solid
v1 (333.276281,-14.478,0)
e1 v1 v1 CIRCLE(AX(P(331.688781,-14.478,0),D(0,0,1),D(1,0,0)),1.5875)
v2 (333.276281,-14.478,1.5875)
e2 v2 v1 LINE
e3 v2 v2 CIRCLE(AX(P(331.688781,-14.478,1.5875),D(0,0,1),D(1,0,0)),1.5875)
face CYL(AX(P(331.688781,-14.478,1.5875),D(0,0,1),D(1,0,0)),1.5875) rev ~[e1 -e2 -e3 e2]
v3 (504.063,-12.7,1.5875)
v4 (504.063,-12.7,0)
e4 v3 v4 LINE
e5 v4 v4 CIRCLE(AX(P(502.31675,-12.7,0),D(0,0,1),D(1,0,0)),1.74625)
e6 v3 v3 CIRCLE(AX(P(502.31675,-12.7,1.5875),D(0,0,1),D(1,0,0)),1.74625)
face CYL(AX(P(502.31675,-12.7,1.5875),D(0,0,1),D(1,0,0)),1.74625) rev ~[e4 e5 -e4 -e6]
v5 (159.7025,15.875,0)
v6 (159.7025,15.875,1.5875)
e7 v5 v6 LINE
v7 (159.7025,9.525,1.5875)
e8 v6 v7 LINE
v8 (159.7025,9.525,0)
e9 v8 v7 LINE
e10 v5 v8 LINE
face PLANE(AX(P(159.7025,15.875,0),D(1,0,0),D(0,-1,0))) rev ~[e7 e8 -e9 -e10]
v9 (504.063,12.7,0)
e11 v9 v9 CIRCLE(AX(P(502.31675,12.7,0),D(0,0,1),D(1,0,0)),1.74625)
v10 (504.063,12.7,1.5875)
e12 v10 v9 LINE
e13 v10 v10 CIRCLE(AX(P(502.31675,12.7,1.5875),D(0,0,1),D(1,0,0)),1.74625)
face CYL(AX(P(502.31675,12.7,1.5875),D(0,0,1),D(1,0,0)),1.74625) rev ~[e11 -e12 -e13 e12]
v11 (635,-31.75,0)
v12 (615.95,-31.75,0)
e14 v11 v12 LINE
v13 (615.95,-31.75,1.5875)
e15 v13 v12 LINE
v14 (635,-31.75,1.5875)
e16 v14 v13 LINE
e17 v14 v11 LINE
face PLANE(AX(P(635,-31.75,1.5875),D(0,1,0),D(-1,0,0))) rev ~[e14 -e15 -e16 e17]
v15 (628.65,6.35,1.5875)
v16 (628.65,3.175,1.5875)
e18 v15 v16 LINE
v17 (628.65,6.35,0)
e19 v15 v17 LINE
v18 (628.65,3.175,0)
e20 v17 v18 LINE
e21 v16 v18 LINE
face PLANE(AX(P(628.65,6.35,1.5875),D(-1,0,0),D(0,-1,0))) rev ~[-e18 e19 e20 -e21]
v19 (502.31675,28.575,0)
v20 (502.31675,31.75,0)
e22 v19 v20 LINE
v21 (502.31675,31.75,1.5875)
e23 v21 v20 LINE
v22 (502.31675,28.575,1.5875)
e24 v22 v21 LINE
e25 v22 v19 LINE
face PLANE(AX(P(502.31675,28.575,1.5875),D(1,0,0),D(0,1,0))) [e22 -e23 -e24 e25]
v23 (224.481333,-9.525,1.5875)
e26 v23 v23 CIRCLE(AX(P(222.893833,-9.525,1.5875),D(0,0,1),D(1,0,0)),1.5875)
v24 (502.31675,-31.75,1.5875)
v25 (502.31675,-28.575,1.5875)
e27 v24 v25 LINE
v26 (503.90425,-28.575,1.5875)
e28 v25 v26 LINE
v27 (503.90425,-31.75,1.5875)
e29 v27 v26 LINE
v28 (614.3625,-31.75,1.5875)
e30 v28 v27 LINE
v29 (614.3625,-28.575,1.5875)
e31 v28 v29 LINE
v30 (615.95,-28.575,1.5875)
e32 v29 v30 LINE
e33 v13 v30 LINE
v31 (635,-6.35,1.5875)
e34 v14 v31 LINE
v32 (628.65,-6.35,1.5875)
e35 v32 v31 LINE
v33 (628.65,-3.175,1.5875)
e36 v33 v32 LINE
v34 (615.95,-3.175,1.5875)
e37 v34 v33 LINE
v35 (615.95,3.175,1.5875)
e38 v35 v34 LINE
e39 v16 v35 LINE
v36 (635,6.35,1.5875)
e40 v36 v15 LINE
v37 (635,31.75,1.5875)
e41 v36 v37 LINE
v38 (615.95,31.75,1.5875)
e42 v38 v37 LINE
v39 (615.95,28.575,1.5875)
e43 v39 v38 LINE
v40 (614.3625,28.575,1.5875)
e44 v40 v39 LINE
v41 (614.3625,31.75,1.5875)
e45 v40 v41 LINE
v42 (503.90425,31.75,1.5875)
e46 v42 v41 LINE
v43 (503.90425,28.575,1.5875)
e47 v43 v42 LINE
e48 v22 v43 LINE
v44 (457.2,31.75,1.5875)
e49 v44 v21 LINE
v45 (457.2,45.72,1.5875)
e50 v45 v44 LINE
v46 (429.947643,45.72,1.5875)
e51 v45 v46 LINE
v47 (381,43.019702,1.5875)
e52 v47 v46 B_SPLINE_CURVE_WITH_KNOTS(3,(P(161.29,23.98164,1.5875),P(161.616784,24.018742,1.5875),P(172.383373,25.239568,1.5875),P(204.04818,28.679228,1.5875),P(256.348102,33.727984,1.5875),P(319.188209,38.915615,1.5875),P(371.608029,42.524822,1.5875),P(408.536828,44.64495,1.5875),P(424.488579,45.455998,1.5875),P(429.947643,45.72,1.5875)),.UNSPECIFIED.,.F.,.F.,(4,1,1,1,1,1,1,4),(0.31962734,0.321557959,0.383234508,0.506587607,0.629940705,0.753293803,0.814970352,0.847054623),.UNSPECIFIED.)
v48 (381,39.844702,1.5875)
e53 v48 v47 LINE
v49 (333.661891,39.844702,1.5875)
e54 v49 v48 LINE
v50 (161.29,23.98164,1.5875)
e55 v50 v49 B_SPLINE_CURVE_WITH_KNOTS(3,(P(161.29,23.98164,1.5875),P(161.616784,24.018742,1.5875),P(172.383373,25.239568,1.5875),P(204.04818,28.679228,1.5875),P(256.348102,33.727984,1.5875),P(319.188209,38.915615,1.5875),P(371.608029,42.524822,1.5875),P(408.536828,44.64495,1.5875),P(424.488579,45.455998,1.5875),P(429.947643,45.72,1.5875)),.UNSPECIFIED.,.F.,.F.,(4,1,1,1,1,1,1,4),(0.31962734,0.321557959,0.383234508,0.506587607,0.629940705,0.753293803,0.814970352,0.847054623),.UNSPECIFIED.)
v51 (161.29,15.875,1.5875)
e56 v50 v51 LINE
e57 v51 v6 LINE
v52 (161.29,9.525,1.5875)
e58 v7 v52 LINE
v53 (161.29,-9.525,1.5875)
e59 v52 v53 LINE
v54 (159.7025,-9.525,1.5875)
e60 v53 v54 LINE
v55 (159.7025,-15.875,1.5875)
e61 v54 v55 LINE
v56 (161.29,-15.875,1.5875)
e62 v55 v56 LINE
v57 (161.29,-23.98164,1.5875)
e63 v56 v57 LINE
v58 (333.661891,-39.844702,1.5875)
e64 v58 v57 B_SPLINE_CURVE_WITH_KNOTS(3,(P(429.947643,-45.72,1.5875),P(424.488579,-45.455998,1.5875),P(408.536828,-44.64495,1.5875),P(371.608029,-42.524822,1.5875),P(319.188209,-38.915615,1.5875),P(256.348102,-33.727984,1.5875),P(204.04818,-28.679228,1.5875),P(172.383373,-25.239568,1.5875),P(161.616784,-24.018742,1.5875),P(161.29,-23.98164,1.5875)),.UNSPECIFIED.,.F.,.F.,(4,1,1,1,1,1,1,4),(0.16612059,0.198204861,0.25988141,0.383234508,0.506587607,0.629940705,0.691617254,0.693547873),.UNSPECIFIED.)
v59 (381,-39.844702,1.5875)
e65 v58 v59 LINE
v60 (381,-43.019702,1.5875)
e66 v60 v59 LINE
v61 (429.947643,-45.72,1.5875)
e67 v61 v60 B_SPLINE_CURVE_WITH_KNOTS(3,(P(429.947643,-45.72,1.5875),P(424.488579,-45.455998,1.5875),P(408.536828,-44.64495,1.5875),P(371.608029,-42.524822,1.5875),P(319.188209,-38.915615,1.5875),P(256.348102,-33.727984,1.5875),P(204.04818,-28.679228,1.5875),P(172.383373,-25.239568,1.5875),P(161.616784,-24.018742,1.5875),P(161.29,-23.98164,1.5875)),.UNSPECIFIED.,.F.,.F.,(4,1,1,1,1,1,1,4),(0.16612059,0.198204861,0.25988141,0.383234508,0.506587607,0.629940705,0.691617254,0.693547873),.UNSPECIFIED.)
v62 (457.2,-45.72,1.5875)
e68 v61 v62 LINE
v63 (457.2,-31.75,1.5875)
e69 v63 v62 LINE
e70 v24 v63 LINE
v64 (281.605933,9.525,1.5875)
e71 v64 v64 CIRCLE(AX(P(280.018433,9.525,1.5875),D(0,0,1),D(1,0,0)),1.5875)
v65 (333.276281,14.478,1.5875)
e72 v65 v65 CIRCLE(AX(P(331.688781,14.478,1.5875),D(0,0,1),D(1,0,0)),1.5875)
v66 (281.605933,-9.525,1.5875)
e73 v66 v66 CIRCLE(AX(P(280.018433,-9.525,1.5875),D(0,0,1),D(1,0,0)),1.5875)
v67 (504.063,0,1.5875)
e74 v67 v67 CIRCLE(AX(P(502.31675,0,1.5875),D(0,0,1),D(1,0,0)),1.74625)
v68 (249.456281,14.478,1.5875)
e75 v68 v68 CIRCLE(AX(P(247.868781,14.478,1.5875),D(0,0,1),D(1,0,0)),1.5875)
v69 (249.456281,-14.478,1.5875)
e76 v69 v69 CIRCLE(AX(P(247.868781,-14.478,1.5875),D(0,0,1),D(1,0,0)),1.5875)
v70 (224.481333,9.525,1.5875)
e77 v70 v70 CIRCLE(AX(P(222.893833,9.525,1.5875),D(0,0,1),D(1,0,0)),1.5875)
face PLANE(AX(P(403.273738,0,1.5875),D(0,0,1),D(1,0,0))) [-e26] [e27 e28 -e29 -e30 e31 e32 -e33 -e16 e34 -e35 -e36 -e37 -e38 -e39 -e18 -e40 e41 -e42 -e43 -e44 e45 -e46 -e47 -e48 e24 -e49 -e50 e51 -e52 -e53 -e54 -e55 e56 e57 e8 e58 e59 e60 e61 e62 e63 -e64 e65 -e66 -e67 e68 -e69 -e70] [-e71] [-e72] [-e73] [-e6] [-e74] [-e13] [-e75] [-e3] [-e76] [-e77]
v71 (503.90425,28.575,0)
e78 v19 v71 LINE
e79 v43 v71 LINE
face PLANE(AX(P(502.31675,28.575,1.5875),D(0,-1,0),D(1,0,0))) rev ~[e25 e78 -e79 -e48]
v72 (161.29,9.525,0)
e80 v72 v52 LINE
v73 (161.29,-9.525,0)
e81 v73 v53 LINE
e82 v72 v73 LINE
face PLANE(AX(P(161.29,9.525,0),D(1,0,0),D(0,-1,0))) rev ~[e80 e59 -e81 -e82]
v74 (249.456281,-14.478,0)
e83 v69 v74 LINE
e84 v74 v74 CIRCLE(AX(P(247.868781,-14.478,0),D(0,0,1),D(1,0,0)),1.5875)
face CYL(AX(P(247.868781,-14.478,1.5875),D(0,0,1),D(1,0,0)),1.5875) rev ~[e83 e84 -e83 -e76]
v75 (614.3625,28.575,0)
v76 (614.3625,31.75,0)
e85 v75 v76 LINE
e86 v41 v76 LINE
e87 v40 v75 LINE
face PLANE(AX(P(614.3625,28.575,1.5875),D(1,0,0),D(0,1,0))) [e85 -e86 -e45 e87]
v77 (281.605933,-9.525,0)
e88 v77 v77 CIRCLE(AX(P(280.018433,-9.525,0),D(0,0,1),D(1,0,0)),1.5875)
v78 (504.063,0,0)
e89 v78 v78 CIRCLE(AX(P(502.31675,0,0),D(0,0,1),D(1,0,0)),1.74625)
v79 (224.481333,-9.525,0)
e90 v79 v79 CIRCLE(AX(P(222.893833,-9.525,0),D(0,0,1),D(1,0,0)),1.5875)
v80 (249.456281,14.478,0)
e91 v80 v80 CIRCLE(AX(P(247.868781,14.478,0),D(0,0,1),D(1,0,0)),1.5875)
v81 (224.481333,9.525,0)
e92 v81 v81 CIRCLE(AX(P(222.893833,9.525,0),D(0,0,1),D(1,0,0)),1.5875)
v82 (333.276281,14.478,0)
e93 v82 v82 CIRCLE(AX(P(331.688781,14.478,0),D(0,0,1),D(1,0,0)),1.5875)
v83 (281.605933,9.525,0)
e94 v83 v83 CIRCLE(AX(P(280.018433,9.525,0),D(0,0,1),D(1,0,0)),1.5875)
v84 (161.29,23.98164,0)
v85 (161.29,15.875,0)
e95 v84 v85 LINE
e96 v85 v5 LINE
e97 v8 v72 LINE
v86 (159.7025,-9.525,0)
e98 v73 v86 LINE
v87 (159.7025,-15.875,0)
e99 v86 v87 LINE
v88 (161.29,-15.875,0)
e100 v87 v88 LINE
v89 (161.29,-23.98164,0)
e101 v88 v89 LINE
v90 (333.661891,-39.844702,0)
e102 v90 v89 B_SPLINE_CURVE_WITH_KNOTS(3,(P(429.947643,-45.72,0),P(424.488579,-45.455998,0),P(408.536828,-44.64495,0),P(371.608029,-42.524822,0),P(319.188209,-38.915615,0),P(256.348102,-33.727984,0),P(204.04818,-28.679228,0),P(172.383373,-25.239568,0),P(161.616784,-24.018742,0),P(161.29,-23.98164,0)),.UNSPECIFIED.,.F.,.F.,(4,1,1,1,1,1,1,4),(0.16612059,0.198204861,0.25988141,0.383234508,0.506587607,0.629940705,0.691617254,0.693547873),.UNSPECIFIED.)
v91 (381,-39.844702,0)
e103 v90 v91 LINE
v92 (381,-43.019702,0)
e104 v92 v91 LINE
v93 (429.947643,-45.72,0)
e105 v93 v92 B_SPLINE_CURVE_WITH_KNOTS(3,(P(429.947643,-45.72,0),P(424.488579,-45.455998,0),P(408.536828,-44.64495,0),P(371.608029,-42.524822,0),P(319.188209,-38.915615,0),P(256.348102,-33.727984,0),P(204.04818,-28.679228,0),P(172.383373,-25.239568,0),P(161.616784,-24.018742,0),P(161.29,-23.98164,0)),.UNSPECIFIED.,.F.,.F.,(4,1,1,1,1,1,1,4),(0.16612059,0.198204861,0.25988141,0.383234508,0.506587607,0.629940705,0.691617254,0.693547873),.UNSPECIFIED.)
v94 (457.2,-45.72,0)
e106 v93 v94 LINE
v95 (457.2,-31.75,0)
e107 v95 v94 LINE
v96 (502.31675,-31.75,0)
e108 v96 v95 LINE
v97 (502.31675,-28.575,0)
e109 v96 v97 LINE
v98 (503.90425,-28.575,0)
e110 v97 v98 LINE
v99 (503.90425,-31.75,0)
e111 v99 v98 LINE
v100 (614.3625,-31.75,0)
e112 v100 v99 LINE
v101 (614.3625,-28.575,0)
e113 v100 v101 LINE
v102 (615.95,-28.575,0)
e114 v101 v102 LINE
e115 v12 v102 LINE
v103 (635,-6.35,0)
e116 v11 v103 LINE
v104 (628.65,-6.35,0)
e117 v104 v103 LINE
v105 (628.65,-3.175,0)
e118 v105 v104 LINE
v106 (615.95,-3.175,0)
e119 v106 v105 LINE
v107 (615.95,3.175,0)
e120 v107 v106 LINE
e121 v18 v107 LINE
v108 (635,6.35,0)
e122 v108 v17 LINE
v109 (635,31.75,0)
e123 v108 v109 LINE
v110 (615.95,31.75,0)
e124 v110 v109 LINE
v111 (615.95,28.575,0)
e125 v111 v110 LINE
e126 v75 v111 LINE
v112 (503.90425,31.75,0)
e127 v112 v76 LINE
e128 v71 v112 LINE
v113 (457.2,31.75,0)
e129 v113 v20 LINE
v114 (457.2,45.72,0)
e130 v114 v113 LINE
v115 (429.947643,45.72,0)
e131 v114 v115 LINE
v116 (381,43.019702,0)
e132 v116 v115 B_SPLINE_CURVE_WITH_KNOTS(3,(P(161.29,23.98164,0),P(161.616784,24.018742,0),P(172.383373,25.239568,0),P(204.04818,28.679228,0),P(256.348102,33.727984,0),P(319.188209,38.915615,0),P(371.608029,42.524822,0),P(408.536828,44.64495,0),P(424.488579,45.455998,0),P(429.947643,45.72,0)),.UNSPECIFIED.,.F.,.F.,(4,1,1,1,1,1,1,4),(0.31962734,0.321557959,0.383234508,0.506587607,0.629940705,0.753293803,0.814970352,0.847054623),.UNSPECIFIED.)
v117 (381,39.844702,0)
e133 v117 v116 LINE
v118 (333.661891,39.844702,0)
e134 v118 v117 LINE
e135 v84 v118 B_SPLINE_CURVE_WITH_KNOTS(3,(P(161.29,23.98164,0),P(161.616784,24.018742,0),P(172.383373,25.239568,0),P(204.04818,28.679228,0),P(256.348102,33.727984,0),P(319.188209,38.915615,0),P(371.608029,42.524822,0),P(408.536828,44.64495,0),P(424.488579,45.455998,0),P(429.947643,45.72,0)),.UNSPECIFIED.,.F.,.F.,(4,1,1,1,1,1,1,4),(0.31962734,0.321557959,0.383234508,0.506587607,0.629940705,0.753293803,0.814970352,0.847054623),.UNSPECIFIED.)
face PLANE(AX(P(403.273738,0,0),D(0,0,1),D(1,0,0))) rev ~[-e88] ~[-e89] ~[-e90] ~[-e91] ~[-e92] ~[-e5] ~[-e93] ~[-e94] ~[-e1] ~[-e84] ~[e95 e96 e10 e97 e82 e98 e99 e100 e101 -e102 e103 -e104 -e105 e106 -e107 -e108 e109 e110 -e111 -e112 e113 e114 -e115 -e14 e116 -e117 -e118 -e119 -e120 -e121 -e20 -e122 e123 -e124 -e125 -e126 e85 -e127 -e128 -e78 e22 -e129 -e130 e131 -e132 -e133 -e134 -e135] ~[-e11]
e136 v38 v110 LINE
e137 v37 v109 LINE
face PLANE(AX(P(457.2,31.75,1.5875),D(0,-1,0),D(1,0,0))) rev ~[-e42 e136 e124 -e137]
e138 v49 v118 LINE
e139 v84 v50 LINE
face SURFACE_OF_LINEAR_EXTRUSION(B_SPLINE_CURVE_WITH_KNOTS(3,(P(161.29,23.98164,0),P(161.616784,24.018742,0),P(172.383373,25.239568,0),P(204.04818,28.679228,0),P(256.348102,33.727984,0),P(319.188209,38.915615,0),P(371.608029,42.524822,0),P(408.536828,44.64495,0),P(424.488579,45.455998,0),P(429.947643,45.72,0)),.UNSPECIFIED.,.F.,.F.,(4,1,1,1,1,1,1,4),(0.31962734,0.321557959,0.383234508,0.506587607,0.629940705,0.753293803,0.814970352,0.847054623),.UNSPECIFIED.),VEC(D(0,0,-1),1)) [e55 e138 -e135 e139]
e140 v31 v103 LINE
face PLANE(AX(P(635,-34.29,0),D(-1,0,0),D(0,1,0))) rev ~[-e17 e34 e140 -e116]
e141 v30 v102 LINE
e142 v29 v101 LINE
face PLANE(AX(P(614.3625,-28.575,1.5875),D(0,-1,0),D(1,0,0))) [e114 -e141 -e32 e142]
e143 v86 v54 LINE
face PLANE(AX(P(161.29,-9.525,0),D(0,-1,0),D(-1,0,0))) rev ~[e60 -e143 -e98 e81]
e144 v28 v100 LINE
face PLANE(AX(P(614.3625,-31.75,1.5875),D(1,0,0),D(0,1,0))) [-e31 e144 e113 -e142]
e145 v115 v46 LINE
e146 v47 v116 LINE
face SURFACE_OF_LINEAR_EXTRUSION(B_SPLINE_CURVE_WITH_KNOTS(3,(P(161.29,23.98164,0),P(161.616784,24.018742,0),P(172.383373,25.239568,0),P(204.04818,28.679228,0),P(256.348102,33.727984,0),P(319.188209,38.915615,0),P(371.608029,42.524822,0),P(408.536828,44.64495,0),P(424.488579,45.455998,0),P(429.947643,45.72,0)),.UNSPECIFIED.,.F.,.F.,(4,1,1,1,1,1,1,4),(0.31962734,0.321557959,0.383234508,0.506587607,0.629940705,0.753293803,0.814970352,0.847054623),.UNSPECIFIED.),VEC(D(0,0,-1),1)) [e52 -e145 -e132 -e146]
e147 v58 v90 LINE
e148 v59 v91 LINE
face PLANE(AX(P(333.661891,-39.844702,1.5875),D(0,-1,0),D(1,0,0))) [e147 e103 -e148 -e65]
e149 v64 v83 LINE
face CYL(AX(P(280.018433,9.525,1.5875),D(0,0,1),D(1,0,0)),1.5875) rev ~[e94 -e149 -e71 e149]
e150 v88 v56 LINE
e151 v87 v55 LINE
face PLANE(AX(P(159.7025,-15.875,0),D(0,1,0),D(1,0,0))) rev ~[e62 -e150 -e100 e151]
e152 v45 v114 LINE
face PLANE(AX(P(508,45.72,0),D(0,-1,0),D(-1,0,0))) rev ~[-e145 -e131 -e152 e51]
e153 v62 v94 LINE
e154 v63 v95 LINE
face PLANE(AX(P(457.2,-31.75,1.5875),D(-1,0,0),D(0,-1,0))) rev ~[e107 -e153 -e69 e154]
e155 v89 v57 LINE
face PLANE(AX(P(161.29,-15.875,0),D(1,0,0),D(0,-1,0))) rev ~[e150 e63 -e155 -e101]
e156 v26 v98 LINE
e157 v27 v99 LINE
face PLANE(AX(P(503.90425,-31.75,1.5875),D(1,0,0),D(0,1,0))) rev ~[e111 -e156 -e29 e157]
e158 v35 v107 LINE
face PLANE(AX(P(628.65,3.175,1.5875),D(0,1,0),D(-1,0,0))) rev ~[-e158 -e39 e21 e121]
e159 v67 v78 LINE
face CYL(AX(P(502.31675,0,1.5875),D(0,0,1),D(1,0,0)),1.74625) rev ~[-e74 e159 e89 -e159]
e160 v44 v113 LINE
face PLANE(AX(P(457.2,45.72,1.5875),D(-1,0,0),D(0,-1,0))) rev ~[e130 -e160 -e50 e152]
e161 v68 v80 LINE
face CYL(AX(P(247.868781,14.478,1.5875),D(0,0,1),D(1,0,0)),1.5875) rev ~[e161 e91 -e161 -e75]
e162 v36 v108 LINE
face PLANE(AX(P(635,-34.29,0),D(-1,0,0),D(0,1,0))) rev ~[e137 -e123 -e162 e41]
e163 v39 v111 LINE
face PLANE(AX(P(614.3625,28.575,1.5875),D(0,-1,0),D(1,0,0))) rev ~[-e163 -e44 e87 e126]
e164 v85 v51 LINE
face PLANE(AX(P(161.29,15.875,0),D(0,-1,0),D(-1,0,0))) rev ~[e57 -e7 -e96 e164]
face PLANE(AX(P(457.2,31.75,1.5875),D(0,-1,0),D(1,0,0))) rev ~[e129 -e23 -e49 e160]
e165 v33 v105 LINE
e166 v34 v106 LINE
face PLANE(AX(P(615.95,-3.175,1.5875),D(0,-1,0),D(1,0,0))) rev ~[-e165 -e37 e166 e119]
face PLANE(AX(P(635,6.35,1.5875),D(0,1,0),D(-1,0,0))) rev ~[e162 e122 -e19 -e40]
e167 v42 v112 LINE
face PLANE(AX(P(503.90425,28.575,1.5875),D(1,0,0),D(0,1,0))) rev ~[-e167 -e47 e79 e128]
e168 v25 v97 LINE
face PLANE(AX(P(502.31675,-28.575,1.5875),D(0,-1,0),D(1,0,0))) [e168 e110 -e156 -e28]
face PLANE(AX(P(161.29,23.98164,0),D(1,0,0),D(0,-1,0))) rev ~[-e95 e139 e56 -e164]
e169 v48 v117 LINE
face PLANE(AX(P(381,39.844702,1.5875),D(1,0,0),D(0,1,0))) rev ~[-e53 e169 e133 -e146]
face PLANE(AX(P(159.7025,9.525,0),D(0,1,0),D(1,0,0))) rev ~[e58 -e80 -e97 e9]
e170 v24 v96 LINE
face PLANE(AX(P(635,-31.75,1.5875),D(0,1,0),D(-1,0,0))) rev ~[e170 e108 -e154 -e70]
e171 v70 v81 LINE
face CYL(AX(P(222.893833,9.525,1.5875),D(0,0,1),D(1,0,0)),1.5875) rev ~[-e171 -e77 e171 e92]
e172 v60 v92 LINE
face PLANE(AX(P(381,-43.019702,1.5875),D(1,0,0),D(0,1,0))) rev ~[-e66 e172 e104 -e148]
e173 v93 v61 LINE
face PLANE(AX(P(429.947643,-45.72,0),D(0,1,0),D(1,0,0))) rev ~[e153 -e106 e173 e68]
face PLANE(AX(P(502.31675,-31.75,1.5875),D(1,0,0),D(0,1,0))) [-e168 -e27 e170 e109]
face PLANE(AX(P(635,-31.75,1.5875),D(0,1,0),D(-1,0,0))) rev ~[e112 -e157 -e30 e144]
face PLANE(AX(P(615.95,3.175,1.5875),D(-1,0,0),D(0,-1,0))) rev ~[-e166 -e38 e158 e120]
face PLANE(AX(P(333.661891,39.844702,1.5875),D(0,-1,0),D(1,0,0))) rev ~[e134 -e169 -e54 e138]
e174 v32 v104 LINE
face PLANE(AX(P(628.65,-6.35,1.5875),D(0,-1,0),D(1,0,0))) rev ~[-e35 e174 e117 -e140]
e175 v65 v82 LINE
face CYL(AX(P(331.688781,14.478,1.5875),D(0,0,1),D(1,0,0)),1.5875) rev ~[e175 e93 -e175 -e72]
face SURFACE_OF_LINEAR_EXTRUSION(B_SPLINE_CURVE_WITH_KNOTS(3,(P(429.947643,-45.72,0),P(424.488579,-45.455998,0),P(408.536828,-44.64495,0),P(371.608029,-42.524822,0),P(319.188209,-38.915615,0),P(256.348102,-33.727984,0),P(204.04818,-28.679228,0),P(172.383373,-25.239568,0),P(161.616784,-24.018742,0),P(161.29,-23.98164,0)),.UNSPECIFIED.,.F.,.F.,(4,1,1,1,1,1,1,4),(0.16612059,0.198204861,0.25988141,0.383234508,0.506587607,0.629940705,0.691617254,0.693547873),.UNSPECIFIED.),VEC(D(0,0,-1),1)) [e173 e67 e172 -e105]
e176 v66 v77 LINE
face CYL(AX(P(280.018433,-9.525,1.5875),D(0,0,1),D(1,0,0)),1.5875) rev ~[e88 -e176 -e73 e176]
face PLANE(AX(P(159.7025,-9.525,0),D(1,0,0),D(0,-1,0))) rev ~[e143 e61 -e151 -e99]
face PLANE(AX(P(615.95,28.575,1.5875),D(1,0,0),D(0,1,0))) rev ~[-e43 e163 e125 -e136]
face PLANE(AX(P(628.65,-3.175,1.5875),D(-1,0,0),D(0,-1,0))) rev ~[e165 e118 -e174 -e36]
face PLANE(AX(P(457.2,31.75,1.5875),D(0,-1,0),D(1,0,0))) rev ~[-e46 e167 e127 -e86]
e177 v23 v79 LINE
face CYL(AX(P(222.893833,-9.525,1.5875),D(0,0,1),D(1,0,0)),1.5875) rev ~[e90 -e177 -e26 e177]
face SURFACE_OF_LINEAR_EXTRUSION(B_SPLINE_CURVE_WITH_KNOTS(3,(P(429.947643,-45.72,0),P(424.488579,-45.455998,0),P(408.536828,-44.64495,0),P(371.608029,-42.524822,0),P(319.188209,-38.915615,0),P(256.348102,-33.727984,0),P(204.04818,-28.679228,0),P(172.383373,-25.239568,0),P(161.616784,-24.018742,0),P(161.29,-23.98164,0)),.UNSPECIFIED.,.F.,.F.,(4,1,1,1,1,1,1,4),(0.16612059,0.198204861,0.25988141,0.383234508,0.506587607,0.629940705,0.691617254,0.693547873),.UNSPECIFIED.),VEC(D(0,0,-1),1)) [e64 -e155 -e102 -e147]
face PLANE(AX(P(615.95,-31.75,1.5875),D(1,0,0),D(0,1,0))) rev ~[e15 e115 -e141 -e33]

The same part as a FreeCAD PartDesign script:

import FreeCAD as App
import Part
import Sketcher

V = App.Vector
Q = App.Units.Quantity

doc = App.newDocument("Part")
body = doc.addObject("PartDesign::Body", "Body")

# Sketch on XY plane
sketch1 = doc.addObject("Sketcher::SketchObject", "Sketch")
body.addObject(sketch1)
sketch1.AttachmentSupport = (doc.XY_Plane, [""])
sketch1.MapMode = "FlatFace"
sketch1.addGeometry(Part.LineSegment(V(508, -45.72, 0), V(508, -34.29, 0)), False)
sketch1.addGeometry(Part.LineSegment(V(508, -34.29, 0), V(635, -34.29, 0)), False)
sketch1.addGeometry(Part.LineSegment(V(635, -34.29, 0), V(635, 34.29, 0)), False)
sketch1.addGeometry(Part.LineSegment(V(635, 34.29, 0), V(508, 34.29, 0)), False)
sketch1.addGeometry(Part.LineSegment(V(508, 34.29, 0), V(508, 45.72, 0)), False)
sketch1.addGeometry(Part.LineSegment(V(508, 45.72, 0), V(429.947643, 45.72, 0)), False)
sketch1.addGeometry(Part.BSplineCurve([V(161.29, 23.98164, 0), V(161.616784, 24.018742, 0), V(172.383373, 25.239568, 0), V(204.04818, 28.679228, 0), V(256.348102, 33.727984, 0), V(319.188209, 38.915615, 0), V(371.608029, 42.524822, 0), V(408.536828, 44.64495, 0), V(424.488579, 45.455998, 0), V(429.947643, 45.72, 0)], [4, 1, 1, 1, 1, 1, 1, 4], [0.31962734, 0.321557959, 0.383234508, 0.506587607, 0.629940705, 0.753293803, 0.814970352, 0.847054623], False, 3, [1, 1, 1, 1, 1, 1, 1, 1, 1, 1], False), False)
sketch1.addGeometry(Part.LineSegment(V(161.29, 23.98164, 0), V(161.29, 15.875, 0)), False)
sketch1.addGeometry(Part.LineSegment(V(161.29, 15.875, 0), V(159.7025, 15.875, 0)), False)
sketch1.addGeometry(Part.LineSegment(V(159.7025, 15.875, 0), V(159.7025, 9.525, 0)), False)
sketch1.addGeometry(Part.LineSegment(V(159.7025, 9.525, 0), V(161.29, 9.525, 0)), False)
sketch1.addGeometry(Part.LineSegment(V(161.29, 9.525, 0), V(161.29, -9.525, 0)), False)
sketch1.addGeometry(Part.LineSegment(V(161.29, -9.525, 0), V(159.7025, -9.525, 0)), False)
sketch1.addGeometry(Part.LineSegment(V(159.7025, -9.525, 0), V(159.7025, -15.875, 0)), False)
sketch1.addGeometry(Part.LineSegment(V(159.7025, -15.875, 0), V(161.29, -15.875, 0)), False)
sketch1.addGeometry(Part.LineSegment(V(161.29, -15.875, 0), V(161.29, -23.98164, 0)), False)
sketch1.addGeometry(Part.BSplineCurve([V(429.947643, -45.72, 0), V(424.488579, -45.455998, 0), V(408.536828, -44.64495, 0), V(371.608029, -42.524822, 0), V(319.188209, -38.915615, 0), V(256.348102, -33.727984, 0), V(204.04818, -28.679228, 0), V(172.383373, -25.239568, 0), V(161.616784, -24.018742, 0), V(161.29, -23.98164, 0)], [4, 1, 1, 1, 1, 1, 1, 4], [0.16612059, 0.198204861, 0.25988141, 0.383234508, 0.506587607, 0.629940705, 0.691617254, 0.693547873], False, 3, [1, 1, 1, 1, 1, 1, 1, 1, 1, 1], False), False)
sketch1.addGeometry(Part.LineSegment(V(429.947643, -45.72, 0), V(508, -45.72, 0)), False)
sketch1.addConstraint(Sketcher.Constraint("Block", 6))
sketch1.addConstraint(Sketcher.Constraint("Block", 16))
sketch1.addConstraint(Sketcher.Constraint("Coincident", 0, 2, 1, 1))
sketch1.addConstraint(Sketcher.Constraint("Coincident", 1, 2, 2, 1))
sketch1.addConstraint(Sketcher.Constraint("Coincident", 2, 2, 3, 1))
sketch1.addConstraint(Sketcher.Constraint("Coincident", 3, 2, 4, 1))
sketch1.addConstraint(Sketcher.Constraint("Coincident", 4, 2, 5, 1))
sketch1.addConstraint(Sketcher.Constraint("Coincident", 5, 2, 6, 2))
sketch1.addConstraint(Sketcher.Constraint("Coincident", 6, 1, 7, 1))
sketch1.addConstraint(Sketcher.Constraint("Coincident", 7, 2, 8, 1))
sketch1.addConstraint(Sketcher.Constraint("Coincident", 8, 2, 9, 1))
sketch1.addConstraint(Sketcher.Constraint("Coincident", 9, 2, 10, 1))
sketch1.addConstraint(Sketcher.Constraint("Coincident", 10, 2, 11, 1))
sketch1.addConstraint(Sketcher.Constraint("Coincident", 11, 2, 12, 1))
sketch1.addConstraint(Sketcher.Constraint("Coincident", 12, 2, 13, 1))
sketch1.addConstraint(Sketcher.Constraint("Coincident", 13, 2, 14, 1))
sketch1.addConstraint(Sketcher.Constraint("Coincident", 14, 2, 15, 1))
sketch1.addConstraint(Sketcher.Constraint("Coincident", 15, 2, 16, 2))
sketch1.addConstraint(Sketcher.Constraint("Coincident", 16, 1, 17, 1))
sketch1.addConstraint(Sketcher.Constraint("Coincident", 17, 2, 0, 1))
sketch1.addConstraint(Sketcher.Constraint("Vertical", 0))
sketch1.addConstraint(Sketcher.Constraint("Horizontal", 1))
sketch1.addConstraint(Sketcher.Constraint("Vertical", 2))
sketch1.addConstraint(Sketcher.Constraint("Horizontal", 3))
sketch1.addConstraint(Sketcher.Constraint("Vertical", 4))
sketch1.addConstraint(Sketcher.Constraint("Horizontal", 5))
sketch1.addConstraint(Sketcher.Constraint("Vertical", 7))
sketch1.addConstraint(Sketcher.Constraint("Horizontal", 8))
sketch1.addConstraint(Sketcher.Constraint("Vertical", 9))
sketch1.addConstraint(Sketcher.Constraint("Horizontal", 10))
sketch1.addConstraint(Sketcher.Constraint("Vertical", 11))
sketch1.addConstraint(Sketcher.Constraint("Horizontal", 12))
sketch1.addConstraint(Sketcher.Constraint("Vertical", 13))
sketch1.addConstraint(Sketcher.Constraint("Horizontal", 14))
sketch1.addConstraint(Sketcher.Constraint("Vertical", 15))
sketch1.addConstraint(Sketcher.Constraint("Horizontal", 17))
sketch1.addConstraint(Sketcher.Constraint("Symmetric", 0, 2, 3, 2, -1))
sketch1.addConstraint(Sketcher.Constraint("Symmetric", 9, 2, 12, 2, -1))
sketch1.addConstraint(Sketcher.Constraint("Vertical", 7, 2, 10, 2))
sketch1.addConstraint(Sketcher.Constraint("Equal", 9, 13))
sketch1.addConstraint(Sketcher.Constraint("DistanceX", 1, 1, 1, 2, Q("5 in")))
sketch1.addConstraint(Sketcher.Constraint("DistanceY", 2, 1, 2, 2, Q("2.7 in")))
sketch1.addConstraint(Sketcher.Constraint("DistanceX", -1, 1, 0, 2, Q("20 in")))
sketch1.addConstraint(Sketcher.Constraint("DistanceY", 11, 2, 7, 2, Q("1 in")))
sketch1.addConstraint(Sketcher.Constraint("DistanceY", 9, 2, 9, 1, Q("0.25 in")))
sketch1.addConstraint(Sketcher.Constraint("DistanceX", 8, 2, 8, 1, Q("0.0625 in")))
pad1 = doc.addObject("PartDesign::Pad", "Pad")
body.addObject(pad1)
pad1.Profile = sketch1
pad1.Length = Q("0.0625 in")

# Sketch on XY plane
sketch2 = doc.addObject("Sketcher::SketchObject", "Sketch001")
body.addObject(sketch2)
sketch2.AttachmentSupport = (doc.XY_Plane, [""])
sketch2.MapMode = "FlatFace"
sketch2.AttachmentOffset = App.Placement(V(0, 0, 0.0625 * 25.4), App.Rotation())
sketch2.addGeometry(Part.LineSegment(V(635, 34.29, 0), V(508, 34.29, 0)), False)
sketch2.addGeometry(Part.LineSegment(V(508, 34.29, 0), V(508, 45.72, 0)), False)
sketch2.addGeometry(Part.LineSegment(V(508, 45.72, 0), V(457.2, 45.72, 0)), False)
sketch2.addGeometry(Part.LineSegment(V(457.2, 45.72, 0), V(457.2, 31.75, 0)), False)
sketch2.addGeometry(Part.LineSegment(V(457.2, 31.75, 0), V(635, 31.75, 0)), False)
sketch2.addGeometry(Part.LineSegment(V(635, 31.75, 0), V(635, 34.29, 0)), False)
sketch2.addGeometry(Part.LineSegment(V(508, -45.72, 0), V(508, -34.29, 0)), False)
sketch2.addGeometry(Part.LineSegment(V(508, -34.29, 0), V(635, -34.29, 0)), False)
sketch2.addGeometry(Part.LineSegment(V(635, -34.29, 0), V(635, -31.75, 0)), False)
sketch2.addGeometry(Part.LineSegment(V(635, -31.75, 0), V(457.2, -31.75, 0)), False)
sketch2.addGeometry(Part.LineSegment(V(457.2, -31.75, 0), V(457.2, -45.72, 0)), False)
sketch2.addGeometry(Part.LineSegment(V(457.2, -45.72, 0), V(508, -45.72, 0)), False)
sketch2.addGeometry(Part.LineSegment(V(628.65, 6.35, 0), V(628.65, 3.175, 0)), False)
sketch2.addGeometry(Part.LineSegment(V(628.65, 3.175, 0), V(615.95, 3.175, 0)), False)
sketch2.addGeometry(Part.LineSegment(V(615.95, 3.175, 0), V(615.95, -3.175, 0)), False)
sketch2.addGeometry(Part.LineSegment(V(615.95, -3.175, 0), V(628.65, -3.175, 0)), False)
sketch2.addGeometry(Part.LineSegment(V(628.65, -3.175, 0), V(628.65, -6.35, 0)), False)
sketch2.addGeometry(Part.LineSegment(V(628.65, -6.35, 0), V(635, -6.35, 0)), False)
sketch2.addGeometry(Part.LineSegment(V(635, -6.35, 0), V(635, 6.35, 0)), False)
sketch2.addGeometry(Part.LineSegment(V(635, 6.35, 0), V(628.65, 6.35, 0)), False)
sketch2.addConstraint(Sketcher.Constraint("Coincident", 0, 2, 1, 1))
sketch2.addConstraint(Sketcher.Constraint("Coincident", 1, 2, 2, 1))
sketch2.addConstraint(Sketcher.Constraint("Coincident", 2, 2, 3, 1))
sketch2.addConstraint(Sketcher.Constraint("Coincident", 3, 2, 4, 1))
sketch2.addConstraint(Sketcher.Constraint("Coincident", 4, 2, 5, 1))
sketch2.addConstraint(Sketcher.Constraint("Coincident", 5, 2, 0, 1))
sketch2.addConstraint(Sketcher.Constraint("Coincident", 6, 2, 7, 1))
sketch2.addConstraint(Sketcher.Constraint("Coincident", 7, 2, 8, 1))
sketch2.addConstraint(Sketcher.Constraint("Coincident", 8, 2, 9, 1))
sketch2.addConstraint(Sketcher.Constraint("Coincident", 9, 2, 10, 1))
sketch2.addConstraint(Sketcher.Constraint("Coincident", 10, 2, 11, 1))
sketch2.addConstraint(Sketcher.Constraint("Coincident", 11, 2, 6, 1))
sketch2.addConstraint(Sketcher.Constraint("Coincident", 12, 2, 13, 1))
sketch2.addConstraint(Sketcher.Constraint("Coincident", 13, 2, 14, 1))
sketch2.addConstraint(Sketcher.Constraint("Coincident", 14, 2, 15, 1))
sketch2.addConstraint(Sketcher.Constraint("Coincident", 15, 2, 16, 1))
sketch2.addConstraint(Sketcher.Constraint("Coincident", 16, 2, 17, 1))
sketch2.addConstraint(Sketcher.Constraint("Coincident", 17, 2, 18, 1))
sketch2.addConstraint(Sketcher.Constraint("Coincident", 18, 2, 19, 1))
sketch2.addConstraint(Sketcher.Constraint("Coincident", 19, 2, 12, 1))
sketch2.addConstraint(Sketcher.Constraint("Horizontal", 0))
sketch2.addConstraint(Sketcher.Constraint("Vertical", 1))
sketch2.addConstraint(Sketcher.Constraint("Horizontal", 2))
sketch2.addConstraint(Sketcher.Constraint("Vertical", 3))
sketch2.addConstraint(Sketcher.Constraint("Horizontal", 4))
sketch2.addConstraint(Sketcher.Constraint("Vertical", 5))
sketch2.addConstraint(Sketcher.Constraint("Vertical", 6))
sketch2.addConstraint(Sketcher.Constraint("Horizontal", 7))
sketch2.addConstraint(Sketcher.Constraint("Vertical", 8))
sketch2.addConstraint(Sketcher.Constraint("Horizontal", 9))
sketch2.addConstraint(Sketcher.Constraint("Vertical", 10))
sketch2.addConstraint(Sketcher.Constraint("Horizontal", 11))
sketch2.addConstraint(Sketcher.Constraint("Vertical", 12))
sketch2.addConstraint(Sketcher.Constraint("Horizontal", 13))
sketch2.addConstraint(Sketcher.Constraint("Vertical", 14))
sketch2.addConstraint(Sketcher.Constraint("Horizontal", 15))
sketch2.addConstraint(Sketcher.Constraint("Vertical", 16))
sketch2.addConstraint(Sketcher.Constraint("Horizontal", 17))
sketch2.addConstraint(Sketcher.Constraint("Vertical", 18))
sketch2.addConstraint(Sketcher.Constraint("Horizontal", 19))
sketch2.addConstraint(Sketcher.Constraint("Symmetric", 0, 2, 6, 2, -1))
sketch2.addConstraint(Sketcher.Constraint("Symmetric", 4, 2, 8, 2, -1))
sketch2.addConstraint(Sketcher.Constraint("Symmetric", 2, 2, 10, 2, -1))
sketch2.addConstraint(Sketcher.Constraint("Symmetric", 12, 2, 15, 2, -1))
sketch2.addConstraint(Sketcher.Constraint("Vertical", 8, 2, 17, 2))
sketch2.addConstraint(Sketcher.Constraint("Equal", 19, 14))
sketch2.addConstraint(Sketcher.Constraint("Equal", 12, 16))
sketch2.addConstraint(Sketcher.Constraint("Equal", 15, 18))
sketch2.addConstraint(Sketcher.Constraint("DistanceX", 0, 2, 0, 1, Q("5 in")))
sketch2.addConstraint(Sketcher.Constraint("DistanceX", 2, 2, 2, 1, Q("2 in")))
sketch2.addConstraint(Sketcher.Constraint("DistanceX", 13, 2, 13, 1, Q("0.5 in")))
sketch2.addConstraint(Sketcher.Constraint("DistanceY", 5, 1, 5, 2, Q("0.1 in")))
sketch2.addConstraint(Sketcher.Constraint("DistanceX", -1, 1, 0, 2, Q("20 in")))
sketch2.addConstraint(Sketcher.Constraint("DistanceY", 8, 2, 16, 2, Q("1 in")))
sketch2.addConstraint(Sketcher.Constraint("DistanceX", 17, 1, 17, 2, Q("0.25 in")))
sketch2.addConstraint(Sketcher.Constraint("DistanceY", 1, 1, 1, 2, Q("0.45 in")))
pocket1 = doc.addObject("PartDesign::Pocket", "Pocket")
body.addObject(pocket1)
pocket1.Profile = sketch2
pocket1.Type = "ThroughAll"

# Sketch on XY plane
sketch3 = doc.addObject("Sketcher::SketchObject", "Sketch002")
body.addObject(sketch3)
sketch3.AttachmentSupport = (doc.XY_Plane, [""])
sketch3.MapMode = "FlatFace"
sketch3.AttachmentOffset = App.Placement(V(0, 0, 0.0625 * 25.4), App.Rotation())
sketch3.addGeometry(Part.LineSegment(V(502.31675, 31.75, 0), V(502.31675, 28.575, 0)), False)
sketch3.addGeometry(Part.LineSegment(V(502.31675, 28.575, 0), V(503.90425, 28.575, 0)), False)
sketch3.addGeometry(Part.LineSegment(V(503.90425, 28.575, 0), V(503.90425, 31.75, 0)), False)
sketch3.addGeometry(Part.LineSegment(V(503.90425, 31.75, 0), V(502.31675, 31.75, 0)), False)
sketch3.addGeometry(Part.LineSegment(V(614.3625, 31.75, 0), V(614.3625, 28.575, 0)), False)
sketch3.addGeometry(Part.LineSegment(V(614.3625, 28.575, 0), V(615.95, 28.575, 0)), False)
sketch3.addGeometry(Part.LineSegment(V(615.95, 28.575, 0), V(615.95, 31.75, 0)), False)
sketch3.addGeometry(Part.LineSegment(V(615.95, 31.75, 0), V(614.3625, 31.75, 0)), False)
sketch3.addGeometry(Part.LineSegment(V(502.31675, -28.575, 0), V(502.31675, -31.75, 0)), False)
sketch3.addGeometry(Part.LineSegment(V(502.31675, -31.75, 0), V(503.90425, -31.75, 0)), False)
sketch3.addGeometry(Part.LineSegment(V(503.90425, -31.75, 0), V(503.90425, -28.575, 0)), False)
sketch3.addGeometry(Part.LineSegment(V(503.90425, -28.575, 0), V(502.31675, -28.575, 0)), False)
sketch3.addGeometry(Part.LineSegment(V(614.3625, -28.575, 0), V(614.3625, -31.75, 0)), False)
sketch3.addGeometry(Part.LineSegment(V(614.3625, -31.75, 0), V(615.95, -31.75, 0)), False)
sketch3.addGeometry(Part.LineSegment(V(615.95, -31.75, 0), V(615.95, -28.575, 0)), False)
sketch3.addGeometry(Part.LineSegment(V(615.95, -28.575, 0), V(614.3625, -28.575, 0)), False)
sketch3.addConstraint(Sketcher.Constraint("Coincident", 0, 2, 1, 1))
sketch3.addConstraint(Sketcher.Constraint("Coincident", 1, 2, 2, 1))
sketch3.addConstraint(Sketcher.Constraint("Coincident", 2, 2, 3, 1))
sketch3.addConstraint(Sketcher.Constraint("Coincident", 3, 2, 0, 1))
sketch3.addConstraint(Sketcher.Constraint("Coincident", 4, 2, 5, 1))
sketch3.addConstraint(Sketcher.Constraint("Coincident", 5, 2, 6, 1))
sketch3.addConstraint(Sketcher.Constraint("Coincident", 6, 2, 7, 1))
sketch3.addConstraint(Sketcher.Constraint("Coincident", 7, 2, 4, 1))
sketch3.addConstraint(Sketcher.Constraint("Coincident", 8, 2, 9, 1))
sketch3.addConstraint(Sketcher.Constraint("Coincident", 9, 2, 10, 1))
sketch3.addConstraint(Sketcher.Constraint("Coincident", 10, 2, 11, 1))
sketch3.addConstraint(Sketcher.Constraint("Coincident", 11, 2, 8, 1))
sketch3.addConstraint(Sketcher.Constraint("Coincident", 12, 2, 13, 1))
sketch3.addConstraint(Sketcher.Constraint("Coincident", 13, 2, 14, 1))
sketch3.addConstraint(Sketcher.Constraint("Coincident", 14, 2, 15, 1))
sketch3.addConstraint(Sketcher.Constraint("Coincident", 15, 2, 12, 1))
sketch3.addConstraint(Sketcher.Constraint("Vertical", 0))
sketch3.addConstraint(Sketcher.Constraint("Horizontal", 1))
sketch3.addConstraint(Sketcher.Constraint("Vertical", 2))
sketch3.addConstraint(Sketcher.Constraint("Horizontal", 3))
sketch3.addConstraint(Sketcher.Constraint("Vertical", 4))
sketch3.addConstraint(Sketcher.Constraint("Horizontal", 5))
sketch3.addConstraint(Sketcher.Constraint("Vertical", 6))
sketch3.addConstraint(Sketcher.Constraint("Horizontal", 7))
sketch3.addConstraint(Sketcher.Constraint("Vertical", 8))
sketch3.addConstraint(Sketcher.Constraint("Horizontal", 9))
sketch3.addConstraint(Sketcher.Constraint("Vertical", 10))
sketch3.addConstraint(Sketcher.Constraint("Horizontal", 11))
sketch3.addConstraint(Sketcher.Constraint("Vertical", 12))
sketch3.addConstraint(Sketcher.Constraint("Horizontal", 13))
sketch3.addConstraint(Sketcher.Constraint("Vertical", 14))
sketch3.addConstraint(Sketcher.Constraint("Horizontal", 15))
sketch3.addConstraint(Sketcher.Constraint("Symmetric", 3, 2, 8, 2, -1))
sketch3.addConstraint(Sketcher.Constraint("Symmetric", 1, 2, 10, 2, -1))
sketch3.addConstraint(Sketcher.Constraint("Symmetric", 7, 2, 12, 2, -1))
sketch3.addConstraint(Sketcher.Constraint("Symmetric", 5, 2, 14, 2, -1))
sketch3.addConstraint(Sketcher.Constraint("Horizontal", 1, 2, 4, 2))
sketch3.addConstraint(Sketcher.Constraint("Horizontal", 3, 2, 6, 2))
sketch3.addConstraint(Sketcher.Constraint("Equal", 3, 5))
sketch3.addConstraint(Sketcher.Constraint("DistanceY", 8, 2, 3, 2, Q("2.5 in")))
sketch3.addConstraint(Sketcher.Constraint("DistanceX", 1, 1, 1, 2, Q("0.0625 in")))
sketch3.addConstraint(Sketcher.Constraint("DistanceY", 0, 2, 0, 1, Q("0.125 in")))
sketch3.addConstraint(Sketcher.Constraint("DistanceX", -1, 1, 5, 2, Q("24.25 in")))
sketch3.addConstraint(Sketcher.Constraint("DistanceX", -1, 1, 0, 2, Q("502.31675 mm")))
pocket2 = doc.addObject("PartDesign::Pocket", "Pocket001")
body.addObject(pocket2)
pocket2.Profile = sketch3
pocket2.Type = "ThroughAll"

# Sketch on XY plane
sketch4 = doc.addObject("Sketcher::SketchObject", "Sketch003")
body.addObject(sketch4)
sketch4.AttachmentSupport = (doc.XY_Plane, [""])
sketch4.MapMode = "FlatFace"
sketch4.AttachmentOffset = App.Placement(V(0, 0, 0.0625 * 25.4), App.Rotation())
sketch4.addGeometry(Part.LineSegment(V(333.661891, 43.019702, 0), V(333.661891, 39.844702, 0)), False)
sketch4.addGeometry(Part.LineSegment(V(333.661891, 39.844702, 0), V(381, 39.844702, 0)), False)
sketch4.addGeometry(Part.LineSegment(V(381, 39.844702, 0), V(381, 43.019702, 0)), False)
sketch4.addGeometry(Part.LineSegment(V(381, 43.019702, 0), V(333.661891, 43.019702, 0)), False)
sketch4.addGeometry(Part.LineSegment(V(333.661891, -39.844702, 0), V(333.661891, -43.019702, 0)), False)
sketch4.addGeometry(Part.LineSegment(V(333.661891, -43.019702, 0), V(381, -43.019702, 0)), False)
sketch4.addGeometry(Part.LineSegment(V(381, -43.019702, 0), V(381, -39.844702, 0)), False)
sketch4.addGeometry(Part.LineSegment(V(381, -39.844702, 0), V(333.661891, -39.844702, 0)), False)
sketch4.addConstraint(Sketcher.Constraint("Coincident", 0, 2, 1, 1))
sketch4.addConstraint(Sketcher.Constraint("Coincident", 1, 2, 2, 1))
sketch4.addConstraint(Sketcher.Constraint("Coincident", 2, 2, 3, 1))
sketch4.addConstraint(Sketcher.Constraint("Coincident", 3, 2, 0, 1))
sketch4.addConstraint(Sketcher.Constraint("Coincident", 4, 2, 5, 1))
sketch4.addConstraint(Sketcher.Constraint("Coincident", 5, 2, 6, 1))
sketch4.addConstraint(Sketcher.Constraint("Coincident", 6, 2, 7, 1))
sketch4.addConstraint(Sketcher.Constraint("Coincident", 7, 2, 4, 1))
sketch4.addConstraint(Sketcher.Constraint("Vertical", 0))
sketch4.addConstraint(Sketcher.Constraint("Horizontal", 1))
sketch4.addConstraint(Sketcher.Constraint("Vertical", 2))
sketch4.addConstraint(Sketcher.Constraint("Horizontal", 3))
sketch4.addConstraint(Sketcher.Constraint("Vertical", 4))
sketch4.addConstraint(Sketcher.Constraint("Horizontal", 5))
sketch4.addConstraint(Sketcher.Constraint("Vertical", 6))
sketch4.addConstraint(Sketcher.Constraint("Horizontal", 7))
sketch4.addConstraint(Sketcher.Constraint("Symmetric", 3, 2, 4, 2, -1))
sketch4.addConstraint(Sketcher.Constraint("Symmetric", 1, 2, 6, 2, -1))
sketch4.addConstraint(Sketcher.Constraint("DistanceX", -1, 1, 1, 2, Q("15 in")))
sketch4.addConstraint(Sketcher.Constraint("DistanceY", 0, 2, 0, 1, Q("0.125 in")))
sketch4.addConstraint(Sketcher.Constraint("DistanceX", 1, 1, 1, 2, Q("47.338109 mm")))
sketch4.addConstraint(Sketcher.Constraint("DistanceY", -1, 1, 0, 2, Q("39.844702 mm")))
pocket3 = doc.addObject("PartDesign::Pocket", "Pocket002")
body.addObject(pocket3)
pocket3.Profile = sketch4
pocket3.Type = "ThroughAll"

# Sketch on XY plane
sketch5 = doc.addObject("Sketcher::SketchObject", "Sketch004")
body.addObject(sketch5)
sketch5.AttachmentSupport = (doc.XY_Plane, [""])
sketch5.MapMode = "FlatFace"
sketch5.AttachmentOffset = App.Placement(V(0, 0, 0.0625 * 25.4), App.Rotation())
sketch5.addGeometry(Part.Circle(V(331.688781, 14.478, 0), V(0, 0, 1), 1.5875), False)
sketch5.addGeometry(Part.Circle(V(331.688781, -14.478, 0), V(0, 0, 1), 1.5875), False)
sketch5.addGeometry(Part.Circle(V(247.868781, 14.478, 0), V(0, 0, 1), 1.5875), False)
sketch5.addGeometry(Part.Circle(V(247.868781, -14.478, 0), V(0, 0, 1), 1.5875), False)
sketch5.addConstraint(Sketcher.Constraint("Equal", 0, 1))
sketch5.addConstraint(Sketcher.Constraint("Equal", 1, 2))
sketch5.addConstraint(Sketcher.Constraint("Equal", 2, 3))
sketch5.addConstraint(Sketcher.Constraint("Symmetric", 0, 3, 1, 3, -1))
sketch5.addConstraint(Sketcher.Constraint("Symmetric", 2, 3, 3, 3, -1))
sketch5.addConstraint(Sketcher.Constraint("Horizontal", 0, 3, 2, 3))
sketch5.addConstraint(Sketcher.Constraint("Diameter", 0, Q("0.125 in")))
sketch5.addConstraint(Sketcher.Constraint("DistanceX", 2, 3, 0, 3, Q("3.3 in")))
sketch5.addConstraint(Sketcher.Constraint("DistanceY", -1, 1, 0, 3, Q("0.57 in")))
sketch5.addConstraint(Sketcher.Constraint("DistanceX", -1, 1, 0, 3, Q("331.688781 mm")))
pocket4 = doc.addObject("PartDesign::Pocket", "Pocket003")
body.addObject(pocket4)
pocket4.Profile = sketch5
pocket4.Type = "ThroughAll"

# Sketch on XY plane
sketch6 = doc.addObject("Sketcher::SketchObject", "Sketch005")
body.addObject(sketch6)
sketch6.AttachmentSupport = (doc.XY_Plane, [""])
sketch6.MapMode = "FlatFace"
sketch6.AttachmentOffset = App.Placement(V(0, 0, 0.0625 * 25.4), App.Rotation())
sketch6.addGeometry(Part.Circle(V(280.018433, 9.525, 0), V(0, 0, 1), 1.5875), False)
sketch6.addGeometry(Part.Circle(V(280.018433, -9.525, 0), V(0, 0, 1), 1.5875), False)
sketch6.addGeometry(Part.Circle(V(222.893833, -9.525, 0), V(0, 0, 1), 1.5875), False)
sketch6.addGeometry(Part.Circle(V(222.893833, 9.525, 0), V(0, 0, 1), 1.5875), False)
sketch6.addConstraint(Sketcher.Constraint("Equal", 0, 1))
sketch6.addConstraint(Sketcher.Constraint("Equal", 1, 2))
sketch6.addConstraint(Sketcher.Constraint("Equal", 2, 3))
sketch6.addConstraint(Sketcher.Constraint("Symmetric", 0, 3, 1, 3, -1))
sketch6.addConstraint(Sketcher.Constraint("Symmetric", 2, 3, 3, 3, -1))
sketch6.addConstraint(Sketcher.Constraint("Horizontal", 1, 3, 2, 3))
sketch6.addConstraint(Sketcher.Constraint("Diameter", 0, Q("0.125 in")))
sketch6.addConstraint(Sketcher.Constraint("DistanceY", 1, 3, 0, 3, Q("0.75 in")))
sketch6.addConstraint(Sketcher.Constraint("DistanceX", 2, 3, 1, 3, Q("2.249 in")))
sketch6.addConstraint(Sketcher.Constraint("DistanceX", -1, 1, 0, 3, Q("280.018433 mm")))
pocket5 = doc.addObject("PartDesign::Pocket", "Pocket004")
body.addObject(pocket5)
pocket5.Profile = sketch6
pocket5.Type = "ThroughAll"

# Sketch on XY plane
sketch7 = doc.addObject("Sketcher::SketchObject", "Sketch006")
body.addObject(sketch7)
sketch7.AttachmentSupport = (doc.XY_Plane, [""])
sketch7.MapMode = "FlatFace"
sketch7.AttachmentOffset = App.Placement(V(0, 0, 0.0625 * 25.4), App.Rotation())
sketch7.addGeometry(Part.Circle(V(502.31675, -12.7, 0), V(0, 0, 1), 1.74625), False)
sketch7.addGeometry(Part.Circle(V(502.31675, 12.7, 0), V(0, 0, 1), 1.74625), False)
sketch7.addGeometry(Part.Circle(V(502.31675, 0, 0), V(0, 0, 1), 1.74625), False)
sketch7.addConstraint(Sketcher.Constraint("Equal", 0, 1))
sketch7.addConstraint(Sketcher.Constraint("Equal", 1, 2))
sketch7.addConstraint(Sketcher.Constraint("Symmetric", 0, 3, 1, 3, -1))
sketch7.addConstraint(Sketcher.Constraint("PointOnObject", 2, 3, -1))
sketch7.addConstraint(Sketcher.Constraint("Vertical", 1, 3, 2, 3))
sketch7.addConstraint(Sketcher.Constraint("DistanceY", 0, 3, 1, 3, Q("1 in")))
sketch7.addConstraint(Sketcher.Constraint("Diameter", 0, Q("0.1375 in")))
sketch7.addConstraint(Sketcher.Constraint("DistanceX", -1, 1, 0, 3, Q("502.31675 mm")))
pocket6 = doc.addObject("PartDesign::Pocket", "Pocket005")
body.addObject(pocket6)
pocket6.Profile = sketch7
pocket6.Type = "ThroughAll"

doc.recompute()
